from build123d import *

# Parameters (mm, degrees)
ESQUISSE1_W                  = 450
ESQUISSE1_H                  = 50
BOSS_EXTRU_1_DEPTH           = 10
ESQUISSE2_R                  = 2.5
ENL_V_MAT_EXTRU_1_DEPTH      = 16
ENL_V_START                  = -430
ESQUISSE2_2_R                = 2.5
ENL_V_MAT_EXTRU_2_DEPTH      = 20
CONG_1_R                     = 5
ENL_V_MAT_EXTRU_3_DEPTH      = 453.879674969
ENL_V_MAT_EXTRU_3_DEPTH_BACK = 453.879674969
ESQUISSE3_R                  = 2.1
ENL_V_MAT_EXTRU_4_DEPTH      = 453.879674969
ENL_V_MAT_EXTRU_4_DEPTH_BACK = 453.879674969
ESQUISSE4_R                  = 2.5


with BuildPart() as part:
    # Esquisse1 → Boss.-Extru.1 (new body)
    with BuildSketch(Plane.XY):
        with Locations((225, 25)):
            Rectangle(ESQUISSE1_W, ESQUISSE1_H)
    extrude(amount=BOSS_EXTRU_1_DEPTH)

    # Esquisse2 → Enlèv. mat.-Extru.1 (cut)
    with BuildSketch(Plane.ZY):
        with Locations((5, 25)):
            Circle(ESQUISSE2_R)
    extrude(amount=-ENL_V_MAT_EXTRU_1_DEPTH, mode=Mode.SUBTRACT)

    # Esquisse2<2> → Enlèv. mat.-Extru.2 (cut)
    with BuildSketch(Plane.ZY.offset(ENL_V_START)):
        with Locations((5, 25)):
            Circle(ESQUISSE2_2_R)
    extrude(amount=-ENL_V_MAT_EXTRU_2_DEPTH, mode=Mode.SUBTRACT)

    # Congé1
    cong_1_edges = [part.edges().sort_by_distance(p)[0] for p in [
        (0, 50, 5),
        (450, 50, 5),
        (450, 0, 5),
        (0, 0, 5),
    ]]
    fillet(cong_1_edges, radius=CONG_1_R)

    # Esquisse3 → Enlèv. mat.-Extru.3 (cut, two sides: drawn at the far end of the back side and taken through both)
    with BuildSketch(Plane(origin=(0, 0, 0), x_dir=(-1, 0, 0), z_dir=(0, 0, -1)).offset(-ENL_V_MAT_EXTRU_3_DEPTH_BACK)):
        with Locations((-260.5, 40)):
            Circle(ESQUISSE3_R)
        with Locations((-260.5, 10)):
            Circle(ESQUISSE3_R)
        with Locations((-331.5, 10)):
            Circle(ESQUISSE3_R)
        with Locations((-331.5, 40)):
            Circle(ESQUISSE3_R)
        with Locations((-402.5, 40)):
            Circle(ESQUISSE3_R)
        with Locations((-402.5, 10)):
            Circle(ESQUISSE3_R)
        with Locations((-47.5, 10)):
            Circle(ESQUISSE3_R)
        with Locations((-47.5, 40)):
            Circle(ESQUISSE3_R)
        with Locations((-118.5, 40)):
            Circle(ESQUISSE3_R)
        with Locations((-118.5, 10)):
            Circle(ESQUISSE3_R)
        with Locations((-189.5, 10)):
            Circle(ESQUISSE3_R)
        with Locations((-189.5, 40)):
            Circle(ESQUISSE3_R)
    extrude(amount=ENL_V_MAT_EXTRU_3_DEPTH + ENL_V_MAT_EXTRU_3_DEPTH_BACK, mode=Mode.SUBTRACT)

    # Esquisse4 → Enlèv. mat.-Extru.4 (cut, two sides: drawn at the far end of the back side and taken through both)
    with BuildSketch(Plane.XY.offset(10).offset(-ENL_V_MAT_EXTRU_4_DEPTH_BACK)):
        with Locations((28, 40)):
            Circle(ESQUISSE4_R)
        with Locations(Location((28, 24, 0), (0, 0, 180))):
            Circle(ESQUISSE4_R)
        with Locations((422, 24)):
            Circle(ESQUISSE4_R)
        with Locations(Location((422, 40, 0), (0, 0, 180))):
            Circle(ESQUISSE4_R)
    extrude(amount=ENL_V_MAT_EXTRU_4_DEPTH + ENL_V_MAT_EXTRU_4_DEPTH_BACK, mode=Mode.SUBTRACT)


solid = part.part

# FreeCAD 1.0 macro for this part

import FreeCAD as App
import Part
import Sketcher

V = App.Vector


def edges_at(feature, points):
    """Names of the edges that pass closest to the given points."""
    edges = feature.Shape.Edges
    near = lambda p: min(range(len(edges)), key=lambda i: edges[i].distToShape(Part.Vertex(*p))[0])
    return sorted({f"Edge{near(p) + 1}" for p in points})


def add_polygon(sketch, points):
    """Adds a closed chain of lines whose ends are joined by coincident constraints."""
    first, n = sketch.GeometryCount, len(points)
    for a, b in zip(points, points[1:] + points[:1]):
        sketch.addGeometry(Part.LineSegment(App.Vector(*a, 0), App.Vector(*b, 0)), False)
    for i in range(n):
        sketch.addConstraint(Sketcher.Constraint("Coincident", first + i, 2, first + (i + 1) % n, 1))

doc = App.newDocument("Part")
body = doc.addObject("PartDesign::Body", "Body")

sketch1 = body.newObject("Sketcher::SketchObject", "Sketch")
sketch1.AttachmentSupport = (doc.getObject("XY_Plane"), [""])
sketch1.MapMode = "FlatFace"
add_polygon(sketch1, [(0, 50), (0, 0), (450, 0), (450, 50)])
sketch1.addConstraint([
    Sketcher.Constraint("Vertical", 0),
    Sketcher.Constraint("Horizontal", 1),
    Sketcher.Constraint("Vertical", 2),
    Sketcher.Constraint("Horizontal", 3),
    Sketcher.Constraint("Coincident", 0, 2, -1, 1),
    Sketcher.Constraint("DistanceX", 1, 1, 1, 2, 450.0),
    Sketcher.Constraint("DistanceY", 0, 2, 0, 1, 50.0),
])
pad1 = body.newObject("PartDesign::Pad", "Pad")
pad1.Profile = sketch1
pad1.Length = 10

sketch2 = body.newObject("Sketcher::SketchObject", "Sketch001")
sketch2.AttachmentSupport = (doc.getObject("YZ_Plane"), [""])
sketch2.MapMode = "FlatFace"
sketch2.addGeometry(Part.Circle(V(25, 5, 0), V(0, 0, 1), 2.5), False)
sketch2.addConstraint([
    Sketcher.Constraint("Diameter", 0, 5.0),
    Sketcher.Constraint("DistanceX", -1, 1, 0, 3, 25.0),
    Sketcher.Constraint("DistanceY", -1, 1, 0, 3, 5.0),
])
pocket1 = body.newObject("PartDesign::Pocket", "Pocket")
pocket1.Profile = sketch2
pocket1.Length = 16
pocket1.Reversed = True

sketch3 = body.newObject("Sketcher::SketchObject", "Sketch002")
sketch3.AttachmentSupport = (doc.getObject("YZ_Plane"), [""])
sketch3.MapMode = "FlatFace"
sketch3.AttachmentOffset = App.Placement(V(0, 0, 430), App.Rotation())
sketch3.addGeometry(Part.Circle(V(25, 5, 0), V(0, 0, 1), 2.5), False)
sketch3.addConstraint([
    Sketcher.Constraint("Diameter", 0, 5.0),
    Sketcher.Constraint("DistanceX", -1, 1, 0, 3, 25.0),
    Sketcher.Constraint("DistanceY", -1, 1, 0, 3, 5.0),
])
pocket2 = body.newObject("PartDesign::Pocket", "Pocket001")
pocket2.Profile = sketch3
pocket2.Length = 20
pocket2.Reversed = True
doc.recompute()

fillet = body.newObject("PartDesign::Fillet", "Fillet")
fillet.Base = (pocket2, edges_at(pocket2, [
    (0, 50, 5),
    (450, 50, 5),
    (450, 0, 5),
    (0, 0, 5),
]))
fillet.Radius = 5

sketch4 = body.newObject("Sketcher::SketchObject", "Sketch003")
sketch4.AttachmentSupport = (doc.getObject("XY_Plane"), [""])
sketch4.MapMode = "FlatFace"
sketch4.addGeometry([
    Part.Circle(V(260.5, 40, 0), V(0, 0, 1), 2.1),
    Part.Circle(V(260.5, 10, 0), V(0, 0, 1), 2.1),
    Part.Circle(V(331.5, 10, 0), V(0, 0, 1), 2.1),
    Part.Circle(V(331.5, 40, 0), V(0, 0, 1), 2.1),
    Part.Circle(V(402.5, 40, 0), V(0, 0, 1), 2.1),
    Part.Circle(V(402.5, 10, 0), V(0, 0, 1), 2.1),
    Part.Circle(V(47.5, 10, 0), V(0, 0, 1), 2.1),
    Part.Circle(V(47.5, 40, 0), V(0, 0, 1), 2.1),
    Part.Circle(V(118.5, 40, 0), V(0, 0, 1), 2.1),
    Part.Circle(V(118.5, 10, 0), V(0, 0, 1), 2.1),
    Part.Circle(V(189.5, 10, 0), V(0, 0, 1), 2.1),
    Part.Circle(V(189.5, 40, 0), V(0, 0, 1), 2.1),
], False)
sketch4.addConstraint([
    Sketcher.Constraint("Equal", 0, 1),
    Sketcher.Constraint("Equal", 1, 2),
    Sketcher.Constraint("Equal", 2, 3),
    Sketcher.Constraint("Equal", 3, 4),
    Sketcher.Constraint("Equal", 4, 5),
    Sketcher.Constraint("Equal", 5, 6),
    Sketcher.Constraint("Equal", 6, 7),
    Sketcher.Constraint("Equal", 7, 8),
    Sketcher.Constraint("Equal", 8, 9),
    Sketcher.Constraint("Equal", 9, 10),
    Sketcher.Constraint("Equal", 10, 11),
    Sketcher.Constraint("Horizontal", 1, 3, 2, 3),
    Sketcher.Constraint("Horizontal", 0, 3, 3, 3),
    Sketcher.Constraint("Horizontal", 3, 3, 4, 3),
    Sketcher.Constraint("Horizontal", 2, 3, 5, 3),
    Sketcher.Constraint("Horizontal", 5, 3, 6, 3),
    Sketcher.Constraint("Horizontal", 4, 3, 7, 3),
    Sketcher.Constraint("Horizontal", 7, 3, 8, 3),
    Sketcher.Constraint("Horizontal", 6, 3, 9, 3),
    Sketcher.Constraint("Horizontal", 9, 3, 10, 3),
    Sketcher.Constraint("Horizontal", 8, 3, 11, 3),
    Sketcher.Constraint("Vertical", 0, 3, 1, 3),
    Sketcher.Constraint("Vertical", 2, 3, 3, 3),
    Sketcher.Constraint("Vertical", 4, 3, 5, 3),
    Sketcher.Constraint("Vertical", 6, 3, 7, 3),
    Sketcher.Constraint("Vertical", 8, 3, 9, 3),
    Sketcher.Constraint("Vertical", 10, 3, 11, 3),
    Sketcher.Constraint("Diameter", 0, 4.2),
    Sketcher.Constraint("DistanceY", -1, 1, 0, 3, 40.0),
    Sketcher.Constraint("DistanceY", -1, 1, 1, 3, 10.0),
    Sketcher.Constraint("DistanceX", 1, 3, 2, 3, 71.0),
    Sketcher.Constraint("DistanceX", 3, 3, 4, 3, 71.0),
    Sketcher.Constraint("DistanceX", 6, 3, 1, 3, 213.0),
    Sketcher.Constraint("DistanceX", 7, 3, 8, 3, 71.0),
    Sketcher.Constraint("DistanceX", 10, 3, 1, 3, 71.0),
    Sketcher.Constraint("DistanceX", -1, 1, 0, 3, 260.5),
])
pocket3 = body.newObject("PartDesign::Pocket", "Pocket002")
pocket3.Profile = sketch4
pocket3.Type = "ThroughAll"
pocket3.Midplane = True

sketch5 = body.newObject("Sketcher::SketchObject", "Sketch004")
sketch5.AttachmentSupport = (doc.getObject("XY_Plane"), [""])
sketch5.MapMode = "FlatFace"
sketch5.AttachmentOffset = App.Placement(V(0, 0, 10), App.Rotation())
sketch5.addGeometry([
    Part.Circle(V(28, 40, 0), V(0, 0, 1), 2.5),
    Part.Circle(V(28, 24, 0), V(0, 0, 1), 2.5),
    Part.Circle(V(422, 24, 0), V(0, 0, 1), 2.5),
    Part.Circle(V(422, 40, 0), V(0, 0, 1), 2.5),
], False)
sketch5.addConstraint([
    Sketcher.Constraint("Equal", 0, 1),
    Sketcher.Constraint("Equal", 1, 2),
    Sketcher.Constraint("Equal", 2, 3),
    Sketcher.Constraint("Horizontal", 1, 3, 2, 3),
    Sketcher.Constraint("Horizontal", 0, 3, 3, 3),
    Sketcher.Constraint("Vertical", 0, 3, 1, 3),
    Sketcher.Constraint("Vertical", 2, 3, 3, 3),
    Sketcher.Constraint("Diameter", 0, 5.0),
    Sketcher.Constraint("DistanceX", -1, 1, 0, 3, 28.0),
    Sketcher.Constraint("DistanceY", -1, 1, 0, 3, 40.0),
    Sketcher.Constraint("DistanceY", -1, 1, 1, 3, 24.0),
    Sketcher.Constraint("DistanceX", -1, 1, 2, 3, 422.0),
])
pocket4 = body.newObject("PartDesign::Pocket", "Pocket003")
pocket4.Profile = sketch5
pocket4.Type = "ThroughAll"
pocket4.Midplane = True

doc.recompute()
